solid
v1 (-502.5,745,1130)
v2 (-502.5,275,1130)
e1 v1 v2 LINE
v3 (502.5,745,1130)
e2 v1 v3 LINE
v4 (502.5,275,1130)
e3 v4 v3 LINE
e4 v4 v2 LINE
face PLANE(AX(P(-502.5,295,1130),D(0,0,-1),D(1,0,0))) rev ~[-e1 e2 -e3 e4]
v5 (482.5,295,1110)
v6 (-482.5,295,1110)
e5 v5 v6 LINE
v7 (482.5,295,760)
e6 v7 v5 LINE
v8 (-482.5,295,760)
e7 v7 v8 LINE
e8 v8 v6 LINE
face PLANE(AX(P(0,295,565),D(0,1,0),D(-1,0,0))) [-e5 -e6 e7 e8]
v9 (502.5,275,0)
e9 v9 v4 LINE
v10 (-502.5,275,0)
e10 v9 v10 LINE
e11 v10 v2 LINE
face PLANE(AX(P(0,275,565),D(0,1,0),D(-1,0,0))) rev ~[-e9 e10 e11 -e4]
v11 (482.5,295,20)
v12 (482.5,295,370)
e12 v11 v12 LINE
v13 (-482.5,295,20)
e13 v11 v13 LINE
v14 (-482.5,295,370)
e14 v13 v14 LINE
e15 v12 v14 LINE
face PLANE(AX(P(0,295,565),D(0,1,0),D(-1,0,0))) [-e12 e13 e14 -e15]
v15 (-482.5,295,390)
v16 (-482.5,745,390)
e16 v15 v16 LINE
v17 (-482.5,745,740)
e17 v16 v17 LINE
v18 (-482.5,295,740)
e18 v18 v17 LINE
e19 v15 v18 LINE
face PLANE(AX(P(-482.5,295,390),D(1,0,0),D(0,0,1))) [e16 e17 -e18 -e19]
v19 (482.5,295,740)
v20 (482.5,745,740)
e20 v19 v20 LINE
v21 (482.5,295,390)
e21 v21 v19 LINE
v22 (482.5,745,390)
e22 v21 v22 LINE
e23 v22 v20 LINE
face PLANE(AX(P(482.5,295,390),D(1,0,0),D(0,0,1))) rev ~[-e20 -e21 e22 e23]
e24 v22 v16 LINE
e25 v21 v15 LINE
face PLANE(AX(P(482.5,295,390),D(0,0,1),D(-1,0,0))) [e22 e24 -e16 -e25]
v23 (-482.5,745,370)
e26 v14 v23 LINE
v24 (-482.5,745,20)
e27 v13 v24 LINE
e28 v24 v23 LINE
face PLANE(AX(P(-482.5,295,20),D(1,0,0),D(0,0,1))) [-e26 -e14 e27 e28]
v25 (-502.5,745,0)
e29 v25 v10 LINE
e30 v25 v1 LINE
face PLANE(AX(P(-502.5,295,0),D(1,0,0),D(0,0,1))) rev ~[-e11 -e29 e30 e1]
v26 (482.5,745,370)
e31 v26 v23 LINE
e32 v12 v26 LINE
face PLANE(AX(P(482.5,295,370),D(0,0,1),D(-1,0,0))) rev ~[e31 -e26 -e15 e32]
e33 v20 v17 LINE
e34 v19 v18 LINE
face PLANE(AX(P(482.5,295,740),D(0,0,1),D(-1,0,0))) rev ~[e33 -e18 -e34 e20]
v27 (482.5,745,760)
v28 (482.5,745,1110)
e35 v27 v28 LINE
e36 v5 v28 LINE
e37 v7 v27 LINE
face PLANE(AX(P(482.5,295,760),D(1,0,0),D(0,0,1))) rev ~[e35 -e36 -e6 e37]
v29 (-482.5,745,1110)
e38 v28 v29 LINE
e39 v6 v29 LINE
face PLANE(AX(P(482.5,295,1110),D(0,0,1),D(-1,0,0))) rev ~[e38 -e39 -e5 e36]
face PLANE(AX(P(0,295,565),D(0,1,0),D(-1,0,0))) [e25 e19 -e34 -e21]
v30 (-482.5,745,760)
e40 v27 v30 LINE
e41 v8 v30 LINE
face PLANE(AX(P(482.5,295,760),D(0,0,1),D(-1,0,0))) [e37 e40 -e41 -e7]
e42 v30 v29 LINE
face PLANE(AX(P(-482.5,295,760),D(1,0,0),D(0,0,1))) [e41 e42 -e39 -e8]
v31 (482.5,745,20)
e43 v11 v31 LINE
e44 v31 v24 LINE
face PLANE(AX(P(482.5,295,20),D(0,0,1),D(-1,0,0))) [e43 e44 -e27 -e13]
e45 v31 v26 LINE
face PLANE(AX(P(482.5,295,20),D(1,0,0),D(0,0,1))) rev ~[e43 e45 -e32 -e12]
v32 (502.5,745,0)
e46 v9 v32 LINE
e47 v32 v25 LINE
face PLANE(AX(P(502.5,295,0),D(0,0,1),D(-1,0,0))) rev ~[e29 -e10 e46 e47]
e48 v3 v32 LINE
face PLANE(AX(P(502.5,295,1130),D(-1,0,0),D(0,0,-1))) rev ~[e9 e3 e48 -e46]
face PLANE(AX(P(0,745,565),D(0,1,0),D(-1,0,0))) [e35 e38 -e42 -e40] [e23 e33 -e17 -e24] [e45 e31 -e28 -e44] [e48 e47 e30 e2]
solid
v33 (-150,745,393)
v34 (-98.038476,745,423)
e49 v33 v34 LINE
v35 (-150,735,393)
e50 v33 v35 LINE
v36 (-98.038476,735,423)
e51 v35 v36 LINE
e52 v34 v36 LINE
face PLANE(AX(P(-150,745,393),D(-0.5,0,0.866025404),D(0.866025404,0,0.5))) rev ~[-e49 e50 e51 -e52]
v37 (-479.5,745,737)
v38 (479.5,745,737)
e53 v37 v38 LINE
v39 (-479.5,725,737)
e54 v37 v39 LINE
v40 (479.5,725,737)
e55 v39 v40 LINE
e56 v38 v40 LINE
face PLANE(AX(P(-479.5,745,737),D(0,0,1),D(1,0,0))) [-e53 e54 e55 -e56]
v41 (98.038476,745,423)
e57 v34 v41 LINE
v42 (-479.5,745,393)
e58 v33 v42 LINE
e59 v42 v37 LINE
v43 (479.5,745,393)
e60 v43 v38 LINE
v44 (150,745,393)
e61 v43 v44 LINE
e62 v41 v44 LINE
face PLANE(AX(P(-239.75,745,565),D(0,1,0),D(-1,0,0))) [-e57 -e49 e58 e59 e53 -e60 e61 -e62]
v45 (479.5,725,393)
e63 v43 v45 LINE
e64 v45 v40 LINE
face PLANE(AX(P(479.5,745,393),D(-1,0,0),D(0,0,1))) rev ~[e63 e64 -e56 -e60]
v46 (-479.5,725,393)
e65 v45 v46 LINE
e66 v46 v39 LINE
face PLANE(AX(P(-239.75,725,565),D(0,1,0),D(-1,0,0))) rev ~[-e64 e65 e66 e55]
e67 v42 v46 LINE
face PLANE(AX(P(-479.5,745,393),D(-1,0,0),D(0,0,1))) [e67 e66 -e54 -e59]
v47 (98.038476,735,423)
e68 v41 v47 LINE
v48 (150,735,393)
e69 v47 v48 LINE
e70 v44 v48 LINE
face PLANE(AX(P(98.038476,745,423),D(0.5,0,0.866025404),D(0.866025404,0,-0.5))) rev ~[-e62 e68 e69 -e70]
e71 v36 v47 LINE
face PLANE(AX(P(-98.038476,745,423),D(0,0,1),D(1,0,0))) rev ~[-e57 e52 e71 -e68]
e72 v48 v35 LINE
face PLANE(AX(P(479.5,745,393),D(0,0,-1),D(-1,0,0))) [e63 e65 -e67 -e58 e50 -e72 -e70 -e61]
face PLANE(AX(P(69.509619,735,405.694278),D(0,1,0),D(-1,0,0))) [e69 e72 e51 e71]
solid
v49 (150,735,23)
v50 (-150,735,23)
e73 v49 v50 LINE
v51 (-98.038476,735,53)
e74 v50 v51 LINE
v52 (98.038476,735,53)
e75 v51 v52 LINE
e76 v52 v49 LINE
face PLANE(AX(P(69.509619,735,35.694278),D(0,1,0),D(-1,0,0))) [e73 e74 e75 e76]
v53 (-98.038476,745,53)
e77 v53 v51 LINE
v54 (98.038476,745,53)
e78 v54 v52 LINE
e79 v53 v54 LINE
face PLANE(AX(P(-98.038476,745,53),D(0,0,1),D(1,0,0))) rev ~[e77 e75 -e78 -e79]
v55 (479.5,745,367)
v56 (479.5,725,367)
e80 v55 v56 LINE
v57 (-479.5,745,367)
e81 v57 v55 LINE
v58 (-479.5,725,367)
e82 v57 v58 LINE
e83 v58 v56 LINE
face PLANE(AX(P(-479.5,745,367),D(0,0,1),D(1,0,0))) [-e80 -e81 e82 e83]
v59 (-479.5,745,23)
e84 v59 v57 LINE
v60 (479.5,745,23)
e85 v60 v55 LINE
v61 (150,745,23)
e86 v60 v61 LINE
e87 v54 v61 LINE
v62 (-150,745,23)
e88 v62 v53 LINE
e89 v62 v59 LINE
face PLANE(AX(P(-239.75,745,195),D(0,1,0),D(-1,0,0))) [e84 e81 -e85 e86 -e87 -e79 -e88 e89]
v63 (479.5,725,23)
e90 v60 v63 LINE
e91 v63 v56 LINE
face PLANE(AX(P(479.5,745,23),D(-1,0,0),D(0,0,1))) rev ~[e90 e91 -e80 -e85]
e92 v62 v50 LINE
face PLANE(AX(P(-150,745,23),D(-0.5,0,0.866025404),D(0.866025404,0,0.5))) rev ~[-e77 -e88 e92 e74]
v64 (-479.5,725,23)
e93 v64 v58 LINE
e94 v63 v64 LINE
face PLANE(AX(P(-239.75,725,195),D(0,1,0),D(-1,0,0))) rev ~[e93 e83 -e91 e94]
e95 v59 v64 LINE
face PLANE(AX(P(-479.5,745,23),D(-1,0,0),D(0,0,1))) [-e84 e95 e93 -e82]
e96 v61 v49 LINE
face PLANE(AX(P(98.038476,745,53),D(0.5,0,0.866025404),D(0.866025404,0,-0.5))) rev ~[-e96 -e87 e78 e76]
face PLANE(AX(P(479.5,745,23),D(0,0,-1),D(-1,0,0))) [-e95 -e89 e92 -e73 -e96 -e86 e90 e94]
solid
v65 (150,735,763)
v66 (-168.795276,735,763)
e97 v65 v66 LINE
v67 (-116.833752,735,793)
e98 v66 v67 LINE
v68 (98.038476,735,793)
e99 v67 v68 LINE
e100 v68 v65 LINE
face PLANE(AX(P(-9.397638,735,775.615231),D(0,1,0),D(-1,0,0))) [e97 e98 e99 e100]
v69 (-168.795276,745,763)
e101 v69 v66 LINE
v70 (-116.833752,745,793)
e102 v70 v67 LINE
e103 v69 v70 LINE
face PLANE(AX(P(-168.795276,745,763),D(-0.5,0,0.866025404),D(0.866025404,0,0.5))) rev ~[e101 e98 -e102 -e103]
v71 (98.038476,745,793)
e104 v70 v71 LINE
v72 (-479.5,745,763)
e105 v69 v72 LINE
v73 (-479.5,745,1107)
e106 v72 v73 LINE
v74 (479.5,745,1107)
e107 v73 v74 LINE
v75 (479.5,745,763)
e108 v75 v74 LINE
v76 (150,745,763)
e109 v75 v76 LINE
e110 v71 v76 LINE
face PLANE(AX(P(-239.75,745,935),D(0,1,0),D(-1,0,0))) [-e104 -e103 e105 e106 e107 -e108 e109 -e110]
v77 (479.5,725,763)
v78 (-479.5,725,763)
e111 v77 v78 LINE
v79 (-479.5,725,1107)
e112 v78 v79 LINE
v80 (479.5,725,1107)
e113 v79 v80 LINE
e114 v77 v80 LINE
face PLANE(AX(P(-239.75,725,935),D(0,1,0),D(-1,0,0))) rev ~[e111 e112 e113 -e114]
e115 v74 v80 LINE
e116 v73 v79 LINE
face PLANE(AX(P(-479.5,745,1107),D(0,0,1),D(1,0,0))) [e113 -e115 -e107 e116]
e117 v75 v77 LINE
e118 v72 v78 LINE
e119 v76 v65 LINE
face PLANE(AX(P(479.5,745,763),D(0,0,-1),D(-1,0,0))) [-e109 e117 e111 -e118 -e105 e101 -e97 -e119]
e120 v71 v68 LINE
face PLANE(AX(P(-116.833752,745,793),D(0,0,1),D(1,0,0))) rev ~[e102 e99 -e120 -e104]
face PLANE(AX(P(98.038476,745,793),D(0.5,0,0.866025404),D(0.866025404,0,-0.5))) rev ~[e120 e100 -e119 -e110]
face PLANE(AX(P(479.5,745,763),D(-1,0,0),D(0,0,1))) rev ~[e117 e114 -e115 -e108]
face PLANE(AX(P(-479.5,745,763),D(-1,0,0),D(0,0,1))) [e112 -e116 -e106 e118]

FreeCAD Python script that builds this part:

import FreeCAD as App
import Part
import Sketcher

V = App.Vector
Q = App.Units.Quantity


def add_polygon(sketch, points):
    """Adds a closed chain of lines whose ends are joined by coincident constraints."""
    first, n = sketch.GeometryCount, len(points)
    for a, b in zip(points, points[1:] + points[:1]):
        sketch.addGeometry(Part.LineSegment(App.Vector(*a, 0), App.Vector(*b, 0)), False)
    for i in range(n):
        sketch.addConstraint(Sketcher.Constraint("Coincident", first + i, 2, first + (i + 1) % n, 1))

doc = App.newDocument("Part")
body = doc.addObject("PartDesign::Body", "Body")

# Sketch on XY plane
sketch1 = body.newObject("Sketcher::SketchObject", "Sketch")
sketch1.AttachmentSupport = (doc.getObject("XY_Plane"), [""])
sketch1.MapMode = "FlatFace"
add_polygon(sketch1, [(-502, 275), (-502, -275), (502, -275), (502, 275)])  # lines 0-3
sketch1.addConstraint([
    Sketcher.Constraint("Vertical", 0),
    Sketcher.Constraint("Horizontal", 1),
    Sketcher.Constraint("Vertical", 2),
    Sketcher.Constraint("Horizontal", 3),
    Sketcher.Constraint("Symmetric", 0, 2, 2, 2, -1, 1),
    Sketcher.Constraint("DistanceX", 1, 1, 1, 2, Q("1005 mm")),
    Sketcher.Constraint("DistanceY", 0, 2, 0, 1, Q("550 mm")),
])
pad1 = body.newObject("PartDesign::Pad", "Pad")
pad1.Profile = sketch1
pad1.Length = 20

# Sketch on XY plane
sketch2 = body.newObject("Sketcher::SketchObject", "Sketch001")
sketch2.AttachmentSupport = (doc.getObject("XY_Plane"), [""])
sketch2.MapMode = "FlatFace"
sketch2.AttachmentOffset = App.Placement(V(0, 0, 20), App.Rotation())
add_polygon(sketch2, [(-502, 275), (-502, 255), (502, 255), (502, 275)])  # lines 0-3
sketch2.addConstraint([
    Sketcher.Constraint("Vertical", 0),
    Sketcher.Constraint("Horizontal", 1),
    Sketcher.Constraint("Vertical", 2),
    Sketcher.Constraint("Horizontal", 3),
    Sketcher.Constraint("DistanceX", 1, 1, 1, 2, Q("1005 mm")),
    Sketcher.Constraint("DistanceY", 0, 2, 0, 1, Q("20 mm")),
    Sketcher.Constraint("DistanceY", -1, 1, 0, 2, Q("255 mm")),
    Sketcher.Constraint("DistanceX", 0, 2, -1, 1, Q("502.5 mm")),
])
pad2 = body.newObject("PartDesign::Pad", "Pad001")
pad2.Profile = sketch2
pad2.Length = 2200

# Sketch on XY plane
sketch3 = body.newObject("Sketcher::SketchObject", "Sketch002")
sketch3.AttachmentSupport = (doc.getObject("XY_Plane"), [""])
sketch3.MapMode = "FlatFace"
sketch3.AttachmentOffset = App.Placement(V(0, 0, 20), App.Rotation())
add_polygon(sketch3, [(-502, 255), (-502, -275), (-482, -275), (-482, 255)])  # lines 0-3
add_polygon(sketch3, [(482, 255), (482, -275), (502, -275), (502, 255)])  # lines 4-7
sketch3.addConstraint([
    Sketcher.Constraint("Vertical", 0),
    Sketcher.Constraint("Horizontal", 1),
    Sketcher.Constraint("Vertical", 2),
    Sketcher.Constraint("Horizontal", 3),
    Sketcher.Constraint("Vertical", 4),
    Sketcher.Constraint("Horizontal", 5),
    Sketcher.Constraint("Vertical", 6),
    Sketcher.Constraint("Horizontal", 7),
    Sketcher.Constraint("Symmetric", 1, 2, 4, 2, -2),
    Sketcher.Constraint("Symmetric", 3, 2, 6, 2, -2),
    Sketcher.Constraint("DistanceX", 1, 1, 1, 2, Q("20 mm")),
    Sketcher.Constraint("DistanceY", 0, 2, 0, 1, Q("530 mm")),
    Sketcher.Constraint("DistanceY", 0, 2, -1, 1, Q("275 mm")),
    Sketcher.Constraint("DistanceX", 1, 2, 4, 2, Q("965 mm")),
])
pad3 = body.newObject("PartDesign::Pad", "Pad002")
pad3.Profile = sketch3
pad3.Length = 2200

# Sketch on XY plane
sketch4 = body.newObject("Sketcher::SketchObject", "Sketch003")
sketch4.AttachmentSupport = (doc.getObject("XY_Plane"), [""])
sketch4.MapMode = "FlatFace"
sketch4.AttachmentOffset = App.Placement(V(0, 0, 2220), App.Rotation())
add_polygon(sketch4, [(-502, 275), (-502, -275), (502, -275), (502, 275)])  # lines 0-3
sketch4.addConstraint([
    Sketcher.Constraint("Vertical", 0),
    Sketcher.Constraint("Horizontal", 1),
    Sketcher.Constraint("Vertical", 2),
    Sketcher.Constraint("Horizontal", 3),
    Sketcher.Constraint("Symmetric", 0, 2, 2, 2, -1, 1),
    Sketcher.Constraint("DistanceX", 1, 1, 1, 2, Q("1005 mm")),
    Sketcher.Constraint("DistanceY", 0, 2, 0, 1, Q("550 mm")),
])
pad4 = body.newObject("PartDesign::Pad", "Pad003")
pad4.Profile = sketch4
pad4.Length = 20
pad4.Reversed = True

# Sketch on YZ plane
sketch5 = body.newObject("Sketcher::SketchObject", "Sketch004")
sketch5.AttachmentSupport = (doc.getObject("YZ_Plane"), [""])
sketch5.MapMode = "FlatFace"
sketch5.AttachmentOffset = App.Placement(V(0, 0, 482.5), App.Rotation())
sketch5.addGeometry(Part.Circle(V(0, 1643, 0), V(0, 0, 1), 18), False)
sketch5.addConstraint([
    Sketcher.Constraint("PointOnObject", 0, 3, -2),
    Sketcher.Constraint("Diameter", 0, Q("35.52923 mm")),
    Sketcher.Constraint("DistanceY", -1, 1, 0, 3, Q("1643.226624 mm")),
])
pad5 = body.newObject("PartDesign::Pad", "Pad004")
pad5.Profile = sketch5
pad5.Length = 982.98
pad5.Reversed = True

# Sketch on XZ plane
sketch6 = body.newObject("Sketcher::SketchObject", "Sketch005")
sketch6.AttachmentSupport = (doc.getObject("XZ_Plane"), [""])
sketch6.MapMode = "FlatFace"
sketch6.AttachmentOffset = App.Placement(V(0, 0, 275), App.Rotation())
add_polygon(sketch6, [(-502, 2220), (-502, 0), (502, 0), (502, 2220)])  # lines 0-3
sketch6.addConstraint([
    Sketcher.Constraint("Vertical", 0),
    Sketcher.Constraint("Horizontal", 1),
    Sketcher.Constraint("Vertical", 2),
    Sketcher.Constraint("Horizontal", 3),
    Sketcher.Constraint("Symmetric", 0, 2, 1, 2, -1, 1),
    Sketcher.Constraint("DistanceX", 1, 1, 1, 2, Q("1005 mm")),
    Sketcher.Constraint("DistanceY", 0, 2, 0, 1, Q("2220 mm")),
])
pocket1 = body.newObject("PartDesign::Pocket", "Pocket")
pocket1.Profile = sketch6
pocket1.Length = 550
body2 = doc.addObject("PartDesign::Body", "Body001")

# Sketch on XZ plane
sketch7 = body2.newObject("Sketcher::SketchObject", "Sketch006")
sketch7.AttachmentSupport = (doc.getObject("XZ_Plane001"), [""])
sketch7.MapMode = "FlatFace"
sketch7.AttachmentOffset = App.Placement(V(0, 0, -275), App.Rotation())
add_polygon(sketch7, [(502, 1130), (502, 0), (-502, 0), (-502, 1130)])  # lines 0-3
sketch7.addConstraint([
    Sketcher.Constraint("Vertical", 0),
    Sketcher.Constraint("Horizontal", 1),
    Sketcher.Constraint("Vertical", 2),
    Sketcher.Constraint("Horizontal", 3),
    Sketcher.Constraint("Symmetric", 0, 2, 1, 2, -1, 1),
    Sketcher.Constraint("DistanceX", 1, 2, 1, 1, Q("1005 mm")),
    Sketcher.Constraint("DistanceY", 0, 2, 0, 1, Q("1130 mm")),
])
pad6 = body2.newObject("PartDesign::Pad", "Pad005")
pad6.Profile = sketch7
pad6.Length = 20
pad6.Reversed = True

# Sketch on XZ plane
sketch8 = body2.newObject("Sketcher::SketchObject", "Sketch007")
sketch8.AttachmentSupport = (doc.getObject("XZ_Plane001"), [""])
sketch8.MapMode = "FlatFace"
sketch8.AttachmentOffset = App.Placement(V(0, 0, -295), App.Rotation())
add_polygon(sketch8, [(-502, 1130), (502, 1130), (502, 0), (-502, 0)])  # lines 0-3
add_polygon(sketch8, [(-482, 20), (482, 20), (482, 370), (-482, 370)])  # lines 4-7
add_polygon(sketch8, [(-482, 390), (482, 390), (482, 740), (-482, 740)])  # lines 8-11
add_polygon(sketch8, [(-482, 760), (482, 760), (482, 1110), (-482, 1110)])  # lines 12-15
sketch8.addConstraint([
    Sketcher.Constraint("Horizontal", 0),
    Sketcher.Constraint("Vertical", 1),
    Sketcher.Constraint("Horizontal", 2),
    Sketcher.Constraint("Vertical", 3),
    Sketcher.Constraint("Horizontal", 4),
    Sketcher.Constraint("Vertical", 5),
    Sketcher.Constraint("Horizontal", 6),
    Sketcher.Constraint("Vertical", 7),
    Sketcher.Constraint("Horizontal", 8),
    Sketcher.Constraint("Vertical", 9),
    Sketcher.Constraint("Horizontal", 10),
    Sketcher.Constraint("Vertical", 11),
    Sketcher.Constraint("Horizontal", 12),
    Sketcher.Constraint("Vertical", 13),
    Sketcher.Constraint("Horizontal", 14),
    Sketcher.Constraint("Vertical", 15),
    Sketcher.Constraint("Symmetric", 1, 2, 2, 2, -1, 1),
    Sketcher.Constraint("Vertical", 5, 2, 8, 2),
    Sketcher.Constraint("Vertical", 7, 2, 10, 2),
    Sketcher.Constraint("Vertical", 9, 2, 12, 2),
    Sketcher.Constraint("Vertical", 11, 2, 14, 2),
    Sketcher.Constraint("Equal", 7, 9),
    Sketcher.Constraint("Equal", 11, 13),
    Sketcher.Constraint("DistanceX", 0, 1, 0, 2, Q("1005 mm")),
    Sketcher.Constraint("DistanceX", 4, 1, 4, 2, Q("965 mm")),
    Sketcher.Constraint("DistanceY", 1, 2, 1, 1, Q("1130 mm")),
    Sketcher.Constraint("DistanceY", 5, 1, 5, 2, Q("350 mm")),
    Sketcher.Constraint("DistanceY", -1, 1, 4, 2, Q("20 mm")),
    Sketcher.Constraint("DistanceY", -1, 1, 8, 2, Q("390 mm")),
    Sketcher.Constraint("DistanceY", -1, 1, 12, 2, Q("760 mm")),
    Sketcher.Constraint("DistanceX", 4, 2, 1, 2, Q("20 mm")),
])
pad7 = body2.newObject("PartDesign::Pad", "Pad006")
pad7.Profile = sketch8
pad7.Length = 450
pad7.Reversed = True
body3 = doc.addObject("PartDesign::Body", "Body002")

# Sketch on XZ plane
sketch9 = body3.newObject("Sketcher::SketchObject", "Sketch008")
sketch9.AttachmentSupport = (doc.getObject("XZ_Plane002"), [""])
sketch9.MapMode = "FlatFace"
sketch9.AttachmentOffset = App.Placement(V(0, 0, -745), App.Rotation())
add_polygon(sketch9, [(-480, 763), (-480, 1107), (480, 1107), (480, 763)])  # lines 0-3
sketch9.addConstraint([
    Sketcher.Constraint("Vertical", 0),
    Sketcher.Constraint("Horizontal", 1),
    Sketcher.Constraint("Vertical", 2),
    Sketcher.Constraint("Horizontal", 3),
    Sketcher.Constraint("DistanceX", 1, 1, 1, 2, Q("959 mm")),
    Sketcher.Constraint("DistanceY", 0, 1, 0, 2, Q("344 mm")),
    Sketcher.Constraint("DistanceY", -1, 1, 0, 2, Q("1107 mm")),
    Sketcher.Constraint("DistanceX", 0, 2, -1, 1, Q("479.5 mm")),
])
pad8 = body3.newObject("PartDesign::Pad", "Pad007")
pad8.Profile = sketch9
pad8.Length = 20

# Sketch on XZ plane
sketch10 = body3.newObject("Sketcher::SketchObject", "Sketch009")
sketch10.AttachmentSupport = (doc.getObject("XZ_Plane002"), [""])
sketch10.MapMode = "FlatFace"
sketch10.AttachmentOffset = App.Placement(V(0, 0, -745), App.Rotation())
add_polygon(sketch10, [(150, 763), (-169, 763), (-117, 793), (98, 793)])  # lines 0-3
sketch10.addConstraint([
    Sketcher.Constraint("Horizontal", 0),
    Sketcher.Constraint("Horizontal", 2),
    Sketcher.Constraint("Equal", 1, 3),
    Sketcher.Constraint("Angle", 1, Q("30 deg")),
    Sketcher.Constraint("Distance", 1, Q("60 mm")),
    Sketcher.Constraint("DistanceY", -1, 1, 0, 2, Q("763 mm")),
    Sketcher.Constraint("DistanceX", -1, 1, 3, 2, Q("150 mm")),
    Sketcher.Constraint("DistanceX", 0, 2, 0, 1, Q("318.795276 mm")),
])
pocket2 = body3.newObject("PartDesign::Pocket", "Pocket001")
pocket2.Profile = sketch10
pocket2.Length = 10
pocket2.Reversed = True
body4 = doc.addObject("PartDesign::Body", "Body003")

# Sketch on XZ plane
sketch11 = body4.newObject("Sketcher::SketchObject", "Sketch010")
sketch11.AttachmentSupport = (doc.getObject("XZ_Plane003"), [""])
sketch11.MapMode = "FlatFace"
sketch11.AttachmentOffset = App.Placement(V(0, 0, -745), App.Rotation())
add_polygon(sketch11, [(-480, 393), (-480, 737), (480, 737), (480, 393)])  # lines 0-3
sketch11.addConstraint([
    Sketcher.Constraint("Vertical", 0),
    Sketcher.Constraint("Horizontal", 1),
    Sketcher.Constraint("Vertical", 2),
    Sketcher.Constraint("Horizontal", 3),
    Sketcher.Constraint("DistanceX", 1, 1, 1, 2, Q("959 mm")),
    Sketcher.Constraint("DistanceY", 0, 1, 0, 2, Q("344 mm")),
    Sketcher.Constraint("DistanceY", -1, 1, 0, 2, Q("737 mm")),
    Sketcher.Constraint("DistanceX", 0, 2, -1, 1, Q("479.5 mm")),
])
pad9 = body4.newObject("PartDesign::Pad", "Pad008")
pad9.Profile = sketch11
pad9.Length = 20

# Sketch on XZ plane
sketch12 = body4.newObject("Sketcher::SketchObject", "Sketch011")
sketch12.AttachmentSupport = (doc.getObject("XZ_Plane003"), [""])
sketch12.MapMode = "FlatFace"
sketch12.AttachmentOffset = App.Placement(V(0, 0, -745), App.Rotation())
add_polygon(sketch12, [(150, 393), (-150, 393), (-98, 423), (98, 423)])  # lines 0-3
sketch12.addConstraint([
    Sketcher.Constraint("Horizontal", 0),
    Sketcher.Constraint("Horizontal", 2),
    Sketcher.Constraint("Equal", 1, 3),
    Sketcher.Constraint("DistanceX", 0, 2, 0, 1, Q("300 mm")),
    Sketcher.Constraint("Angle", 1, Q("30 deg")),
    Sketcher.Constraint("Distance", 1, Q("60 mm")),
    Sketcher.Constraint("DistanceX", 0, 2, -1, 1, Q("150 mm")),
    Sketcher.Constraint("DistanceY", -1, 1, 0, 2, Q("393 mm")),
])
pocket3 = body4.newObject("PartDesign::Pocket", "Pocket002")
pocket3.Profile = sketch12
pocket3.Length = 10
pocket3.Reversed = True
body5 = doc.addObject("PartDesign::Body", "Body004")

# Sketch on XZ plane
sketch13 = body5.newObject("Sketcher::SketchObject", "Sketch012")
sketch13.AttachmentSupport = (doc.getObject("XZ_Plane004"), [""])
sketch13.MapMode = "FlatFace"
sketch13.AttachmentOffset = App.Placement(V(0, 0, -745), App.Rotation())
add_polygon(sketch13, [(-480, 23), (-480, 367), (480, 367), (480, 23)])  # lines 0-3
sketch13.addConstraint([
    Sketcher.Constraint("Vertical", 0),
    Sketcher.Constraint("Horizontal", 1),
    Sketcher.Constraint("Vertical", 2),
    Sketcher.Constraint("Horizontal", 3),
    Sketcher.Constraint("DistanceX", 1, 1, 1, 2, Q("959 mm")),
    Sketcher.Constraint("DistanceY", 0, 1, 0, 2, Q("344 mm")),
    Sketcher.Constraint("DistanceY", -1, 1, 0, 2, Q("367 mm")),
    Sketcher.Constraint("DistanceX", 0, 2, -1, 1, Q("479.5 mm")),
])
pad10 = body5.newObject("PartDesign::Pad", "Pad009")
pad10.Profile = sketch13
pad10.Length = 20

# Sketch on XZ plane
sketch14 = body5.newObject("Sketcher::SketchObject", "Sketch013")
sketch14.AttachmentSupport = (doc.getObject("XZ_Plane004"), [""])
sketch14.MapMode = "FlatFace"
sketch14.AttachmentOffset = App.Placement(V(0, 0, -745), App.Rotation())
add_polygon(sketch14, [(150, 23), (-150, 23), (-98, 53), (98, 53)])  # lines 0-3
sketch14.addConstraint([
    Sketcher.Constraint("Horizontal", 0),
    Sketcher.Constraint("Horizontal", 2),
    Sketcher.Constraint("Equal", 1, 3),
    Sketcher.Constraint("DistanceX", 0, 2, 0, 1, Q("300 mm")),
    Sketcher.Constraint("Angle", 1, Q("30 deg")),
    Sketcher.Constraint("Distance", 1, Q("60 mm")),
    Sketcher.Constraint("DistanceX", 0, 2, -1, 1, Q("150 mm")),
    Sketcher.Constraint("DistanceY", -1, 1, 0, 2, Q("23 mm")),
])
pocket4 = body5.newObject("PartDesign::Pocket", "Pocket003")
pocket4.Profile = sketch14
pocket4.Length = 10
pocket4.Reversed = True

doc.recompute()
